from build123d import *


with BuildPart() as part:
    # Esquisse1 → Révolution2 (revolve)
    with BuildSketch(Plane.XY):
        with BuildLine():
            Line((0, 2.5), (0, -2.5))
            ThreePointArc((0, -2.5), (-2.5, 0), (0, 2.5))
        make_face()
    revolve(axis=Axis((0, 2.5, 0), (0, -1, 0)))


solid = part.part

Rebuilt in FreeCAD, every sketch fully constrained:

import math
import FreeCAD as App
import Part
import Sketcher

V = App.Vector

doc = App.newDocument("Part")
body = doc.addObject("PartDesign::Body", "Body")

sketch1 = doc.addObject("Sketcher::SketchObject", "Sketch")
body.addObject(sketch1)
sketch1.AttachmentSupport = (doc.XY_Plane, [""])
sketch1.MapMode = "FlatFace"
sketch1.addGeometry(Part.LineSegment(V(0, -2.5, 0), V(0, 2.5, 0)), False)
sketch1.addGeometry(Part.ArcOfCircle(Part.Circle(V(0, 0, 0), V(0, 0, 1), 2.5), math.radians(90), math.radians(270)), False)
sketch1.addConstraint(Sketcher.Constraint("Coincident", 0, 1, 1, 2))
sketch1.addConstraint(Sketcher.Constraint("Coincident", 1, 1, 0, 2))
sketch1.addConstraint(Sketcher.Constraint("Vertical", 0))
sketch1.addConstraint(Sketcher.Constraint("Coincident", 1, 3, -1, 1))
sketch1.addConstraint(Sketcher.Constraint("PointOnObject", 0, 1, -2))
sketch1.addConstraint(Sketcher.Constraint("Radius", 1, 2.5))
revolution = doc.addObject("PartDesign::Revolution", "Revolution")
body.addObject(revolution)
revolution.Profile = sketch1
revolution.ReferenceAxis = (sketch1, ["V_Axis"])
revolution.Angle = 360

doc.recompute()
